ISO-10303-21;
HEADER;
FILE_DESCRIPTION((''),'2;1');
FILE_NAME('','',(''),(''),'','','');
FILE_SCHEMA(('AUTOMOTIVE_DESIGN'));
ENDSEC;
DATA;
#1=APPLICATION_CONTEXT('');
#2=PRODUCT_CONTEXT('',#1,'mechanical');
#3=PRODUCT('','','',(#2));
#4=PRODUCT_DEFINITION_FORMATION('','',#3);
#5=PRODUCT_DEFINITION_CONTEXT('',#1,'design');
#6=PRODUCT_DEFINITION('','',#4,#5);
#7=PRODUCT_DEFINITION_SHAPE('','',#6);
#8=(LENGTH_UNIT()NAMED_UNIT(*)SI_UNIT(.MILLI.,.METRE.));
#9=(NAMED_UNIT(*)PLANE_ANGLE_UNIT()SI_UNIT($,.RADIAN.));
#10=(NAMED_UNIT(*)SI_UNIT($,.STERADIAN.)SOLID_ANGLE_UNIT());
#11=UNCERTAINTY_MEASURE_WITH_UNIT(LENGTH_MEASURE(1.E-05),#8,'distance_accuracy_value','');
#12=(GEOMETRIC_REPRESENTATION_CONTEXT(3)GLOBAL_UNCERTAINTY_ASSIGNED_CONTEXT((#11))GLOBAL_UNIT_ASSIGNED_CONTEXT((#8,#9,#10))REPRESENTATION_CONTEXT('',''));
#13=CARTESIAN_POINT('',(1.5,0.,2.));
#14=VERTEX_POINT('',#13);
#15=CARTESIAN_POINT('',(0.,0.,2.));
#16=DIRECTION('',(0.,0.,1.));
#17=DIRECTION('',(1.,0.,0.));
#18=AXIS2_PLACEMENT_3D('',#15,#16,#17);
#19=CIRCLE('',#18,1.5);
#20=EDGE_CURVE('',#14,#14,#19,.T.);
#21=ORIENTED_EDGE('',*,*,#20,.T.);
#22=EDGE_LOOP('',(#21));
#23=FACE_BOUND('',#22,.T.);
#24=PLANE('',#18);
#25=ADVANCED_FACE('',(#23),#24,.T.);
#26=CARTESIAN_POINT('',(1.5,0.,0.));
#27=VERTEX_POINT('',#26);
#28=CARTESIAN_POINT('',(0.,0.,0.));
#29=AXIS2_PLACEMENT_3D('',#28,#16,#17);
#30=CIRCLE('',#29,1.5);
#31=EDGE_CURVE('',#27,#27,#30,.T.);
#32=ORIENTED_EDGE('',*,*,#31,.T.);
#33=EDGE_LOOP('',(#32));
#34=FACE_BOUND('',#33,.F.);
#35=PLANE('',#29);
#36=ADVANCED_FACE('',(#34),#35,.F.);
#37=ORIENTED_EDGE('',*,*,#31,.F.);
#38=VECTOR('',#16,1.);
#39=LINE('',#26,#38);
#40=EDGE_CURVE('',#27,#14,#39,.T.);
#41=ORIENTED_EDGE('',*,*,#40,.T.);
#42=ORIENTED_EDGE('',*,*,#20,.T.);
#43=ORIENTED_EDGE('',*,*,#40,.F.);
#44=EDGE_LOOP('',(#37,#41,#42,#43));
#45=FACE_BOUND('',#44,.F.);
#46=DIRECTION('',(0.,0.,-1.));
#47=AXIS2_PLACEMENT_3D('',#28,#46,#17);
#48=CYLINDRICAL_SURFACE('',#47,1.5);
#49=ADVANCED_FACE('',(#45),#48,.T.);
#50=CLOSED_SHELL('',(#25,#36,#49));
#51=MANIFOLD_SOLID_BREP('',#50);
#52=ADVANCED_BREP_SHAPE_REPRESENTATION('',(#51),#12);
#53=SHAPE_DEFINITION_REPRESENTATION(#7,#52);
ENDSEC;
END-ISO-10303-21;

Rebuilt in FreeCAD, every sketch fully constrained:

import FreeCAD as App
import Part
import Sketcher

V = App.Vector
Q = App.Units.Quantity

doc = App.newDocument("Part")
body = doc.addObject("PartDesign::Body", "Body")

# Sketch on XY plane
sketch1 = body.newObject("Sketcher::SketchObject", "Sketch")
sketch1.AttachmentSupport = (doc.getObject("XY_Plane"), [""])
sketch1.MapMode = "FlatFace"
sketch1.addGeometry(Part.Circle(V(0, 0, 0), V(0, 0, 1), 1.5), False)
sketch1.addConstraint([
    Sketcher.Constraint("Coincident", 0, 3, -1, 1),
    Sketcher.Constraint("Diameter", 0, Q("3 mm")),
])
pad1 = body.newObject("PartDesign::Pad", "Pad")
pad1.Profile = sketch1
pad1.Length = 2

doc.recompute()
